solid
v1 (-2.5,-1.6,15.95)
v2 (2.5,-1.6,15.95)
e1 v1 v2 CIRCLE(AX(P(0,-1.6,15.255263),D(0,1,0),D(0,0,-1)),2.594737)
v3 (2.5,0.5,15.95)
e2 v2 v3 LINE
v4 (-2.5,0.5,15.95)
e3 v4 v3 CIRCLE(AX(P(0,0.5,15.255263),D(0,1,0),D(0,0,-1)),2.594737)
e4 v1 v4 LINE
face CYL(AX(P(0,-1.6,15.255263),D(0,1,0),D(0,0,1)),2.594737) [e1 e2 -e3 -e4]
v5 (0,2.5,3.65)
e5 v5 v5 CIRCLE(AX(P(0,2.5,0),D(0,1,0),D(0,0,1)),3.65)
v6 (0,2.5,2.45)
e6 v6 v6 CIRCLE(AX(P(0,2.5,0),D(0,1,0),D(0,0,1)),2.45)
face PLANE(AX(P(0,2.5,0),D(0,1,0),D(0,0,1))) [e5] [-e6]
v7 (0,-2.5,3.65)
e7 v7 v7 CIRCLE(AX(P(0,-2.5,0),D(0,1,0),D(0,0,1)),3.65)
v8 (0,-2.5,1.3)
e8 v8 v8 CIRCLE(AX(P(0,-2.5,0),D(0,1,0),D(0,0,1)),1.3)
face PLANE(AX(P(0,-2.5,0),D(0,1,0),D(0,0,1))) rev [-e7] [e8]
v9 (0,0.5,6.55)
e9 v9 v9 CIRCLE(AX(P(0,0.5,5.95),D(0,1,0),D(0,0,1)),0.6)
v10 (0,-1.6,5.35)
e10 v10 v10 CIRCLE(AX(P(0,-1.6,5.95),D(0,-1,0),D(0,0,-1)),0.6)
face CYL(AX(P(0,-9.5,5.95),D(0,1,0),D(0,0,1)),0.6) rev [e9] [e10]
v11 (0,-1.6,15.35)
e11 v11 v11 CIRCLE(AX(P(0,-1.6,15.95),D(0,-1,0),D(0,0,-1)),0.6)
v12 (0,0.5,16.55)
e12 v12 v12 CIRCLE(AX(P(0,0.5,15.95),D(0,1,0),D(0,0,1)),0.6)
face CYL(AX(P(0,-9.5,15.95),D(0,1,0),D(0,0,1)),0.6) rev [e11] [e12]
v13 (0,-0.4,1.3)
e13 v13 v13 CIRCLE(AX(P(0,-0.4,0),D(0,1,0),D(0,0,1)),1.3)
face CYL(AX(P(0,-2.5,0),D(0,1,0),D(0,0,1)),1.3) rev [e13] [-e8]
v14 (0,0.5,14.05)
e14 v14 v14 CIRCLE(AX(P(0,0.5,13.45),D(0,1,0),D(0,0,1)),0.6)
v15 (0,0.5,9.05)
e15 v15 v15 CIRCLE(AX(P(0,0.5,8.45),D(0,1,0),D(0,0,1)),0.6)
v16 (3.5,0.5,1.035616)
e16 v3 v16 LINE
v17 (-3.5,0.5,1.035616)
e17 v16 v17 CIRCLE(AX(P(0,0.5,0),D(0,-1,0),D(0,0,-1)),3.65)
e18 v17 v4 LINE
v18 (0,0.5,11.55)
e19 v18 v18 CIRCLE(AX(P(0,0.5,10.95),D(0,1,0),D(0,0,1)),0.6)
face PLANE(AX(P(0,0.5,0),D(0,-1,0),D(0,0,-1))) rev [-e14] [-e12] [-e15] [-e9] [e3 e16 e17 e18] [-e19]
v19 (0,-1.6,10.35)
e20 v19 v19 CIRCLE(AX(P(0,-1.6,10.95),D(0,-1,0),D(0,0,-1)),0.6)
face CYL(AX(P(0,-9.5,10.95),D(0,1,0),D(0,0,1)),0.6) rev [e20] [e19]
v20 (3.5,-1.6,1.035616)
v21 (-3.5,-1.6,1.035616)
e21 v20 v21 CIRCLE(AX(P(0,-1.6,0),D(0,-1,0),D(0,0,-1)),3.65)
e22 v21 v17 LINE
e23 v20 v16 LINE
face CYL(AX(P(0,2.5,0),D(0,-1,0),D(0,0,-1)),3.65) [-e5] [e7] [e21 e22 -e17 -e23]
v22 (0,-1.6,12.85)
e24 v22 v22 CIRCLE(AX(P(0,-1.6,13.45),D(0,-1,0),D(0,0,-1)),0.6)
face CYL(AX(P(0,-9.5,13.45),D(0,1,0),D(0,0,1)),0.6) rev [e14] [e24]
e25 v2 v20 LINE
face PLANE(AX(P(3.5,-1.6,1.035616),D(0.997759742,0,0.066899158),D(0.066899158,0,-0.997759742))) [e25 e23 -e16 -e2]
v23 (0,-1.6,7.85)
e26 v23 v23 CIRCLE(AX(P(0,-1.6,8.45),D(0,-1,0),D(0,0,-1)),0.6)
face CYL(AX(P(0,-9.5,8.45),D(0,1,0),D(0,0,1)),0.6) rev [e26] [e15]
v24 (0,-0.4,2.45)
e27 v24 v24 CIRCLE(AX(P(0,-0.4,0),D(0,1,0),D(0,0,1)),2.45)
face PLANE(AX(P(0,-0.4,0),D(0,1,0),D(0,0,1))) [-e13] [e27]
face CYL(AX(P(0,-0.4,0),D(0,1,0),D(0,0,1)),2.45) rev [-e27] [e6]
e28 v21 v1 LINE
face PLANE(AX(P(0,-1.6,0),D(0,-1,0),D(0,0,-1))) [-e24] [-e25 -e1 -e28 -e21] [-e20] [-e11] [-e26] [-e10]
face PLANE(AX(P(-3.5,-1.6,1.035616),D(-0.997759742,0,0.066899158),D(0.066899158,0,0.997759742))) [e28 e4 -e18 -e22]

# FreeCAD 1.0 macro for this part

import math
import FreeCAD as App
import Part
import Sketcher
from FreeCAD import Vector

doc = App.newDocument("Part")
params = doc.addObject("Spreadsheet::Sheet", "Params")
for row, (alias, value) in enumerate([
    ("sketch1_diameter", "7.3 mm"),
    ("pad1_length", "5 mm"),
    ("sketch2_diameter", "4.9 mm"),
    ("pocket1_length", "2.9 mm"),
    ("sketch3_diameter", "2.6 mm"),
    ("sketch4_radius", "3.65 mm"),
    ("pad2_length", "2.1 mm"),
    ("sketch5_diameter", "1.2 mm"),
    ("pocket3_length", "10 mm"),
], start=1):
    params.set(f"A{row}", alias)
    params.set(f"B{row}", "=" + value)
    params.setAlias(f"B{row}", alias)

body = doc.addObject("PartDesign::Body", "Body")

sketch1 = body.newObject("Sketcher::SketchObject", "Sketch")
sketch1.AttachmentSupport = (doc.getObject("XZ_Plane"), [""])
sketch1.MapMode = "FlatFace"
sketch1.addGeometry(Part.Circle(Vector(0, 0, 0), Vector(0, 0, 1), 3.65), False)
sketch1.addConstraint([
    Sketcher.Constraint("Coincident", 0, 3, -1, 1),
    Sketcher.Constraint("Diameter", 0, 7.3),
])
sketch1.setExpression("Constraints[1]", "Params.sketch1_diameter")
pad1 = body.newObject("PartDesign::Pad", "Pad")
pad1.Profile = sketch1
pad1.setExpression("Length", "Params.pad1_length")
pad1.Midplane = True

sketch2 = body.newObject("Sketcher::SketchObject", "Sketch001")
sketch2.AttachmentSupport = (doc.getObject("XZ_Plane"), [""])
sketch2.MapMode = "FlatFace"
sketch2.AttachmentOffset = App.Placement(Vector(0, 0, -2.5), App.Rotation())
sketch2.addGeometry(Part.Circle(Vector(0, 0, 0), Vector(0, 0, 1), 2.45), False)
sketch2.addConstraint([
    Sketcher.Constraint("Coincident", 0, 3, -1, 1),
    Sketcher.Constraint("Diameter", 0, 4.9),
])
sketch2.setExpression("Constraints[1]", "Params.sketch2_diameter")
pocket1 = body.newObject("PartDesign::Pocket", "Pocket")
pocket1.Profile = sketch2
pocket1.setExpression("Length", "Params.pocket1_length")
pocket1.Reversed = True

sketch3 = body.newObject("Sketcher::SketchObject", "Sketch002")
sketch3.AttachmentSupport = (doc.getObject("XZ_Plane"), [""])
sketch3.MapMode = "FlatFace"
sketch3.AttachmentOffset = App.Placement(Vector(0, 0, 0.4), App.Rotation())
sketch3.addGeometry(Part.Circle(Vector(0, 0, 0), Vector(0, 0, 1), 1.3), False)
sketch3.addConstraint([
    Sketcher.Constraint("Coincident", 0, 3, -1, 1),
    Sketcher.Constraint("Diameter", 0, 2.6),
])
sketch3.setExpression("Constraints[1]", "Params.sketch3_diameter")
pocket2 = body.newObject("PartDesign::Pocket", "Pocket001")
pocket2.Profile = sketch3
pocket2.Type = "ThroughAll"
pocket2.Reversed = True

sketch4 = body.newObject("Sketcher::SketchObject", "Sketch003")
sketch4.AttachmentSupport = (doc.getObject("XZ_Plane"), [""])
sketch4.MapMode = "FlatFace"
sketch4.AttachmentOffset = App.Placement(Vector(0, 0, -0.5), App.Rotation())
sketch4.addGeometry([
    Part.LineSegment(Vector(2.5, 15.95, 0), Vector(3.5, 1.035616, 0)),
    Part.ArcOfCircle(Part.Circle(Vector(0, 0, 0), Vector(0, 0, 1), 3.65), math.radians(16.48297), math.radians(163.51703)),
    Part.LineSegment(Vector(-3.5, 1.035616, 0), Vector(-2.5, 15.95, 0)),
    Part.ArcOfCircle(Part.Circle(Vector(0, 15.255263, 0), Vector(0, 0, 1), 2.594737), math.radians(15.530332), math.radians(164.469668)),
], False)
sketch4.addConstraint([
    Sketcher.Constraint("Coincident", 0, 2, 1, 1),
    Sketcher.Constraint("Coincident", 1, 2, 2, 1),
    Sketcher.Constraint("Coincident", 2, 2, 3, 2),
    Sketcher.Constraint("Coincident", 3, 1, 0, 1),
    Sketcher.Constraint("Coincident", 1, 3, -1, 1),
    Sketcher.Constraint("Symmetric", 2, 2, 3, 1, -2),
    Sketcher.Constraint("Horizontal", 0, 2, 1, 2),
    Sketcher.Constraint("Radius", 1, 3.65),
    Sketcher.Constraint("DistanceX", 1, 2, 0, 2, 7.0),
    Sketcher.Constraint("DistanceX", 1, 2, 2, 2, 1.0),
    Sketcher.Constraint("DistanceY", -1, 1, 2, 2, 15.95),
    Sketcher.Constraint("Radius", 3, 2.594737),
])
sketch4.setExpression("Constraints[7]", "Params.sketch4_radius")
pad2 = body.newObject("PartDesign::Pad", "Pad001")
pad2.Profile = sketch4
pad2.setExpression("Length", "Params.pad2_length")

sketch5 = body.newObject("Sketcher::SketchObject", "Sketch004")
sketch5.AttachmentSupport = (doc.getObject("XZ_Plane"), [""])
sketch5.MapMode = "FlatFace"
sketch5.AttachmentOffset = App.Placement(Vector(0, 0, -0.5), App.Rotation())
sketch5.addGeometry([
    Part.Circle(Vector(0, 15.95, 0), Vector(0, 0, 1), 0.6),
    Part.Circle(Vector(0, 13.45, 0), Vector(0, 0, 1), 0.6),
    Part.Circle(Vector(0, 10.95, 0), Vector(0, 0, 1), 0.6),
    Part.Circle(Vector(0, 8.45, 0), Vector(0, 0, 1), 0.6),
    Part.Circle(Vector(0, 5.95, 0), Vector(0, 0, 1), 0.6),
], False)
sketch5.addConstraint([
    Sketcher.Constraint("Equal", 0, 1),
    Sketcher.Constraint("Equal", 1, 2),
    Sketcher.Constraint("Equal", 2, 3),
    Sketcher.Constraint("Equal", 3, 4),
    Sketcher.Constraint("PointOnObject", 0, 3, -2),
    Sketcher.Constraint("PointOnObject", 1, 3, -2),
    Sketcher.Constraint("PointOnObject", 2, 3, -2),
    Sketcher.Constraint("PointOnObject", 3, 3, -2),
    Sketcher.Constraint("PointOnObject", 4, 3, -2),
    Sketcher.Constraint("Diameter", 0, 1.2),
    Sketcher.Constraint("DistanceY", 2, 3, 0, 3, 5.0),
    Sketcher.Constraint("DistanceY", 3, 3, 1, 3, 5.0),
    Sketcher.Constraint("DistanceY", 4, 3, 2, 3, 5.0),
    Sketcher.Constraint("DistanceY", 1, 3, 0, 3, 2.5),
    Sketcher.Constraint("DistanceY", -1, 1, 0, 3, 15.95),
])
sketch5.setExpression("Constraints[9]", "Params.sketch5_diameter")
pocket3 = body.newObject("PartDesign::Pocket", "Pocket002")
pocket3.Profile = sketch5
pocket3.setExpression("Length", "Params.pocket3_length")
pocket3.Reversed = True

doc.recompute()
